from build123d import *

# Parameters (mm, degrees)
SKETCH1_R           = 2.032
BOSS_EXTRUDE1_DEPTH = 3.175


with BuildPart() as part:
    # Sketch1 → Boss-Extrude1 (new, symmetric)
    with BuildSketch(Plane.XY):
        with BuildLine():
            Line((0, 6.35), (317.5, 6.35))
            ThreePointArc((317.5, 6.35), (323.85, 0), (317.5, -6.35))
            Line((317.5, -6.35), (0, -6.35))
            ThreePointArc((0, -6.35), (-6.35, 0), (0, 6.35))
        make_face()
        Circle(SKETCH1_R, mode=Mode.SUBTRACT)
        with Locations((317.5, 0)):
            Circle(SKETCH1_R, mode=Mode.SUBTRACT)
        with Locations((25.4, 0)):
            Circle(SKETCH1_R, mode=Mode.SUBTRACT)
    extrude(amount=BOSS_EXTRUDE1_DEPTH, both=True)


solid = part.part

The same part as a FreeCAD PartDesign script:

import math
import FreeCAD as App
import Part
import Sketcher
Q = App.Units.Quantity

doc = App.newDocument("Part")
params = doc.addObject("Spreadsheet::Sheet", "Params")
for row, (alias, value) in enumerate([
    ("sketch1_diameter", "0.16 in"),
    ("sketch1_radius", "0.25 in"),
    ("sketch1_width", "12.5 in"),
    ("pad1_length", "0.25 in"),
], start=1):
    params.set(f"A{row}", alias)
    params.set(f"B{row}", "=" + value)
    params.setAlias(f"B{row}", alias)

body = doc.addObject("PartDesign::Body", "Body")

sketch1 = body.newObject("Sketcher::SketchObject", "Sketch")
sketch1.AttachmentSupport = (doc.getObject("XY_Plane"), [""])
sketch1.MapMode = "FlatFace"
sketch1.addGeometry([
    Part.LineSegment(App.Vector(317.5, 6.35, 0), App.Vector(0, 6.35, 0)),
    Part.ArcOfCircle(Part.Circle(App.Vector(0, 0, 0), App.Vector(0, 0, 1), 6.35), math.radians(90), math.radians(270)),
    Part.LineSegment(App.Vector(0, -6.35, 0), App.Vector(317.5, -6.35, 0)),
    Part.ArcOfCircle(Part.Circle(App.Vector(317.5, 0, 0), App.Vector(0, 0, 1), 6.35), math.radians(-90), math.radians(90)),
    Part.Circle(App.Vector(317.5, 0, 0), App.Vector(0, 0, 1), 2.032),
    Part.Circle(App.Vector(25.4, 0, 0), App.Vector(0, 0, 1), 2.032),
    Part.Circle(App.Vector(0, 0, 0), App.Vector(0, 0, 1), 2.032),
], False)
sketch1.addConstraint([
    Sketcher.Constraint("Tangent", 0, 2, 1, 1),
    Sketcher.Constraint("Tangent", 1, 2, 2, 1),
    Sketcher.Constraint("Tangent", 2, 2, 3, 1),
    Sketcher.Constraint("Tangent", 3, 2, 0, 1),
    Sketcher.Constraint("Horizontal", 0),
    Sketcher.Constraint("Horizontal", 2),
    Sketcher.Constraint("Coincident", 1, 3, -1, 1),
    Sketcher.Constraint("Coincident", 6, 3, -1, 1),
    Sketcher.Constraint("Coincident", 4, 3, 3, 3),
    Sketcher.Constraint("Equal", 4, 5),
    Sketcher.Constraint("Equal", 5, 6),
    Sketcher.Constraint("PointOnObject", 5, 3, -1),
    Sketcher.Constraint("Diameter", 4, Q("0.16 in")),
    Sketcher.Constraint("Radius", 1, Q("0.25 in")),
    Sketcher.Constraint("DistanceX", 0, 2, 0, 1, Q("12.5 in")),
    Sketcher.Constraint("DistanceX", -1, 1, 5, 3, Q("1 in")),
])
sketch1.setExpression("Constraints[12]", "Params.sketch1_diameter")
sketch1.setExpression("Constraints[13]", "Params.sketch1_radius")
sketch1.setExpression("Constraints[14]", "Params.sketch1_width")
pad1 = body.newObject("PartDesign::Pad", "Pad")
pad1.Profile = sketch1
pad1.setExpression("Length", "Params.pad1_length")
pad1.Midplane = True

doc.recompute()
